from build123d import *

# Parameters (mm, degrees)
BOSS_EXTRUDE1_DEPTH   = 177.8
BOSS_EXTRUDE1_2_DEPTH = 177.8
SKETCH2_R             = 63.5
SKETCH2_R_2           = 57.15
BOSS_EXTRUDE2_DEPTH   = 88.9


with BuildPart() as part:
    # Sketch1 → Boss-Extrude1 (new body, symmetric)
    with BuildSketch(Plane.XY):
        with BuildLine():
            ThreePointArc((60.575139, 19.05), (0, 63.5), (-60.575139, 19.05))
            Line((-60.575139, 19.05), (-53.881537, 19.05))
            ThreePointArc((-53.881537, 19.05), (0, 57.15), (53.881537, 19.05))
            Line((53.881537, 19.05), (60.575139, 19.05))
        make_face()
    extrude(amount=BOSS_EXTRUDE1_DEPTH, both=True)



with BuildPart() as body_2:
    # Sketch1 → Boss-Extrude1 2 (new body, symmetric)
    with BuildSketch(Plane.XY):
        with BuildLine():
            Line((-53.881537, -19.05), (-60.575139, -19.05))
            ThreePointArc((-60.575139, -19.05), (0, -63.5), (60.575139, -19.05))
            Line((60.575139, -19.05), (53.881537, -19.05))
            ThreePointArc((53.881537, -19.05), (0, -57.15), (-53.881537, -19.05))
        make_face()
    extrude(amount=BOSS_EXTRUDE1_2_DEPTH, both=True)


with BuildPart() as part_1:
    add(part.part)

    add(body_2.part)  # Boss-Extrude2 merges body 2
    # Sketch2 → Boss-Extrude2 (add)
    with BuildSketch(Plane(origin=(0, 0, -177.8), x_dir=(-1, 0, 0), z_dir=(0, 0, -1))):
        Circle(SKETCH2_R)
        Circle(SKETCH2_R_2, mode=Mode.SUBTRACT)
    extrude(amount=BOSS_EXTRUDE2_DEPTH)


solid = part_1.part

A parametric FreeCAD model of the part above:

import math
import FreeCAD as App
import Part
import Sketcher
from FreeCAD import Vector
Q = App.Units.Quantity

doc = App.newDocument("Part")
body = doc.addObject("PartDesign::Body", "Body")

sketch1 = body.newObject("Sketcher::SketchObject", "Sketch")
sketch1.AttachmentSupport = (doc.getObject("XY_Plane"), [""])
sketch1.MapMode = "FlatFace"
sketch1.addGeometry(Part.ArcOfCircle(Part.Circle(Vector(0, 0, 0), Vector(0, 0, 1), 63), math.radians(17), math.radians(163)), False)
sketch1.addGeometry(Part.LineSegment(Vector(-61, 19, 0), Vector(-54, 19, 0)), False)
sketch1.addGeometry(Part.ArcOfCircle(Part.Circle(Vector(0, 0, 0), Vector(0, 0, 1), 57), math.radians(19), math.radians(161)), False)
sketch1.addGeometry(Part.LineSegment(Vector(54, 19, 0), Vector(61, 19, 0)), False)
sketch1.addConstraint(Sketcher.Constraint("Coincident", 0, 2, 1, 1))
sketch1.addConstraint(Sketcher.Constraint("Coincident", 1, 2, 2, 2))
sketch1.addConstraint(Sketcher.Constraint("Coincident", 2, 1, 3, 1))
sketch1.addConstraint(Sketcher.Constraint("Coincident", 3, 2, 0, 1))
sketch1.addConstraint(Sketcher.Constraint("Horizontal", 1))
sketch1.addConstraint(Sketcher.Constraint("Horizontal", 3))
sketch1.addConstraint(Sketcher.Constraint("Coincident", 0, 3, -1, 1))
sketch1.addConstraint(Sketcher.Constraint("Coincident", 2, 3, -1, 1))
sketch1.addConstraint(Sketcher.Constraint("Horizontal", 1, 2, 2, 1))
sketch1.addConstraint(Sketcher.Constraint("Radius", 0, Q("2.5 in")))
sketch1.addConstraint(Sketcher.Constraint("Radius", 2, Q("2.25 in")))
sketch1.addConstraint(Sketcher.Constraint("DistanceY", -1, 1, 0, 2, Q("0.75 in")))
pad1 = body.newObject("PartDesign::Pad", "Pad")
pad1.Profile = sketch1
pad1.Length = Q("14 in")
pad1.Midplane = True
body2 = doc.addObject("PartDesign::Body", "Body001")

sketch2 = body2.newObject("Sketcher::SketchObject", "Sketch001")
sketch2.AttachmentSupport = (doc.getObject("XY_Plane001"), [""])
sketch2.MapMode = "FlatFace"
sketch2.addGeometry(Part.LineSegment(Vector(-54, -19, 0), Vector(-61, -19, 0)), False)
sketch2.addGeometry(Part.ArcOfCircle(Part.Circle(Vector(0, 0, 0), Vector(0, 0, 1), 63), math.radians(-163), math.radians(-17)), False)
sketch2.addGeometry(Part.LineSegment(Vector(61, -19, 0), Vector(54, -19, 0)), False)
sketch2.addGeometry(Part.ArcOfCircle(Part.Circle(Vector(0, 0, 0), Vector(0, 0, 1), 57), math.radians(-161), math.radians(-19)), False)
sketch2.addConstraint(Sketcher.Constraint("Coincident", 0, 2, 1, 1))
sketch2.addConstraint(Sketcher.Constraint("Coincident", 1, 2, 2, 1))
sketch2.addConstraint(Sketcher.Constraint("Coincident", 2, 2, 3, 2))
sketch2.addConstraint(Sketcher.Constraint("Coincident", 3, 1, 0, 1))
sketch2.addConstraint(Sketcher.Constraint("Horizontal", 0))
sketch2.addConstraint(Sketcher.Constraint("Horizontal", 2))
sketch2.addConstraint(Sketcher.Constraint("Coincident", 1, 3, -1, 1))
sketch2.addConstraint(Sketcher.Constraint("Coincident", 3, 3, -1, 1))
sketch2.addConstraint(Sketcher.Constraint("Horizontal", 0, 2, 1, 2))
sketch2.addConstraint(Sketcher.Constraint("Radius", 1, Q("2.5 in")))
sketch2.addConstraint(Sketcher.Constraint("Radius", 3, Q("2.25 in")))
sketch2.addConstraint(Sketcher.Constraint("DistanceY", 0, 2, -1, 1, Q("0.75 in")))
pad2 = body2.newObject("PartDesign::Pad", "Pad001")
pad2.Profile = sketch2
pad2.Length = Q("14 in")
pad2.Midplane = True
body.AllowCompound = True
doc.recompute()

boolean = body.newObject("PartDesign::Boolean", "Boolean")
boolean.Type = "Fuse"
boolean.addObjects([body2])

sketch3 = body.newObject("Sketcher::SketchObject", "Sketch002")
sketch3.AttachmentSupport = (doc.getObject("XY_Plane"), [""])
sketch3.MapMode = "FlatFace"
sketch3.AttachmentOffset = App.Placement(Vector(0, 0, -7 * 25.4), App.Rotation())
sketch3.addGeometry(Part.Circle(Vector(0, 0, 0), Vector(0, 0, 1), 64), False)
sketch3.addGeometry(Part.Circle(Vector(0, 0, 0), Vector(0, 0, 1), 57), False)
sketch3.addConstraint(Sketcher.Constraint("Coincident", 0, 3, -1, 1))
sketch3.addConstraint(Sketcher.Constraint("Coincident", 1, 3, -1, 1))
sketch3.addConstraint(Sketcher.Constraint("Diameter", 0, Q("5 in")))
sketch3.addConstraint(Sketcher.Constraint("Diameter", 1, Q("4.5 in")))
pad3 = body.newObject("PartDesign::Pad", "Pad002")
pad3.Profile = sketch3
pad3.Length = Q("3.5 in")
pad3.Reversed = True

doc.recompute()
